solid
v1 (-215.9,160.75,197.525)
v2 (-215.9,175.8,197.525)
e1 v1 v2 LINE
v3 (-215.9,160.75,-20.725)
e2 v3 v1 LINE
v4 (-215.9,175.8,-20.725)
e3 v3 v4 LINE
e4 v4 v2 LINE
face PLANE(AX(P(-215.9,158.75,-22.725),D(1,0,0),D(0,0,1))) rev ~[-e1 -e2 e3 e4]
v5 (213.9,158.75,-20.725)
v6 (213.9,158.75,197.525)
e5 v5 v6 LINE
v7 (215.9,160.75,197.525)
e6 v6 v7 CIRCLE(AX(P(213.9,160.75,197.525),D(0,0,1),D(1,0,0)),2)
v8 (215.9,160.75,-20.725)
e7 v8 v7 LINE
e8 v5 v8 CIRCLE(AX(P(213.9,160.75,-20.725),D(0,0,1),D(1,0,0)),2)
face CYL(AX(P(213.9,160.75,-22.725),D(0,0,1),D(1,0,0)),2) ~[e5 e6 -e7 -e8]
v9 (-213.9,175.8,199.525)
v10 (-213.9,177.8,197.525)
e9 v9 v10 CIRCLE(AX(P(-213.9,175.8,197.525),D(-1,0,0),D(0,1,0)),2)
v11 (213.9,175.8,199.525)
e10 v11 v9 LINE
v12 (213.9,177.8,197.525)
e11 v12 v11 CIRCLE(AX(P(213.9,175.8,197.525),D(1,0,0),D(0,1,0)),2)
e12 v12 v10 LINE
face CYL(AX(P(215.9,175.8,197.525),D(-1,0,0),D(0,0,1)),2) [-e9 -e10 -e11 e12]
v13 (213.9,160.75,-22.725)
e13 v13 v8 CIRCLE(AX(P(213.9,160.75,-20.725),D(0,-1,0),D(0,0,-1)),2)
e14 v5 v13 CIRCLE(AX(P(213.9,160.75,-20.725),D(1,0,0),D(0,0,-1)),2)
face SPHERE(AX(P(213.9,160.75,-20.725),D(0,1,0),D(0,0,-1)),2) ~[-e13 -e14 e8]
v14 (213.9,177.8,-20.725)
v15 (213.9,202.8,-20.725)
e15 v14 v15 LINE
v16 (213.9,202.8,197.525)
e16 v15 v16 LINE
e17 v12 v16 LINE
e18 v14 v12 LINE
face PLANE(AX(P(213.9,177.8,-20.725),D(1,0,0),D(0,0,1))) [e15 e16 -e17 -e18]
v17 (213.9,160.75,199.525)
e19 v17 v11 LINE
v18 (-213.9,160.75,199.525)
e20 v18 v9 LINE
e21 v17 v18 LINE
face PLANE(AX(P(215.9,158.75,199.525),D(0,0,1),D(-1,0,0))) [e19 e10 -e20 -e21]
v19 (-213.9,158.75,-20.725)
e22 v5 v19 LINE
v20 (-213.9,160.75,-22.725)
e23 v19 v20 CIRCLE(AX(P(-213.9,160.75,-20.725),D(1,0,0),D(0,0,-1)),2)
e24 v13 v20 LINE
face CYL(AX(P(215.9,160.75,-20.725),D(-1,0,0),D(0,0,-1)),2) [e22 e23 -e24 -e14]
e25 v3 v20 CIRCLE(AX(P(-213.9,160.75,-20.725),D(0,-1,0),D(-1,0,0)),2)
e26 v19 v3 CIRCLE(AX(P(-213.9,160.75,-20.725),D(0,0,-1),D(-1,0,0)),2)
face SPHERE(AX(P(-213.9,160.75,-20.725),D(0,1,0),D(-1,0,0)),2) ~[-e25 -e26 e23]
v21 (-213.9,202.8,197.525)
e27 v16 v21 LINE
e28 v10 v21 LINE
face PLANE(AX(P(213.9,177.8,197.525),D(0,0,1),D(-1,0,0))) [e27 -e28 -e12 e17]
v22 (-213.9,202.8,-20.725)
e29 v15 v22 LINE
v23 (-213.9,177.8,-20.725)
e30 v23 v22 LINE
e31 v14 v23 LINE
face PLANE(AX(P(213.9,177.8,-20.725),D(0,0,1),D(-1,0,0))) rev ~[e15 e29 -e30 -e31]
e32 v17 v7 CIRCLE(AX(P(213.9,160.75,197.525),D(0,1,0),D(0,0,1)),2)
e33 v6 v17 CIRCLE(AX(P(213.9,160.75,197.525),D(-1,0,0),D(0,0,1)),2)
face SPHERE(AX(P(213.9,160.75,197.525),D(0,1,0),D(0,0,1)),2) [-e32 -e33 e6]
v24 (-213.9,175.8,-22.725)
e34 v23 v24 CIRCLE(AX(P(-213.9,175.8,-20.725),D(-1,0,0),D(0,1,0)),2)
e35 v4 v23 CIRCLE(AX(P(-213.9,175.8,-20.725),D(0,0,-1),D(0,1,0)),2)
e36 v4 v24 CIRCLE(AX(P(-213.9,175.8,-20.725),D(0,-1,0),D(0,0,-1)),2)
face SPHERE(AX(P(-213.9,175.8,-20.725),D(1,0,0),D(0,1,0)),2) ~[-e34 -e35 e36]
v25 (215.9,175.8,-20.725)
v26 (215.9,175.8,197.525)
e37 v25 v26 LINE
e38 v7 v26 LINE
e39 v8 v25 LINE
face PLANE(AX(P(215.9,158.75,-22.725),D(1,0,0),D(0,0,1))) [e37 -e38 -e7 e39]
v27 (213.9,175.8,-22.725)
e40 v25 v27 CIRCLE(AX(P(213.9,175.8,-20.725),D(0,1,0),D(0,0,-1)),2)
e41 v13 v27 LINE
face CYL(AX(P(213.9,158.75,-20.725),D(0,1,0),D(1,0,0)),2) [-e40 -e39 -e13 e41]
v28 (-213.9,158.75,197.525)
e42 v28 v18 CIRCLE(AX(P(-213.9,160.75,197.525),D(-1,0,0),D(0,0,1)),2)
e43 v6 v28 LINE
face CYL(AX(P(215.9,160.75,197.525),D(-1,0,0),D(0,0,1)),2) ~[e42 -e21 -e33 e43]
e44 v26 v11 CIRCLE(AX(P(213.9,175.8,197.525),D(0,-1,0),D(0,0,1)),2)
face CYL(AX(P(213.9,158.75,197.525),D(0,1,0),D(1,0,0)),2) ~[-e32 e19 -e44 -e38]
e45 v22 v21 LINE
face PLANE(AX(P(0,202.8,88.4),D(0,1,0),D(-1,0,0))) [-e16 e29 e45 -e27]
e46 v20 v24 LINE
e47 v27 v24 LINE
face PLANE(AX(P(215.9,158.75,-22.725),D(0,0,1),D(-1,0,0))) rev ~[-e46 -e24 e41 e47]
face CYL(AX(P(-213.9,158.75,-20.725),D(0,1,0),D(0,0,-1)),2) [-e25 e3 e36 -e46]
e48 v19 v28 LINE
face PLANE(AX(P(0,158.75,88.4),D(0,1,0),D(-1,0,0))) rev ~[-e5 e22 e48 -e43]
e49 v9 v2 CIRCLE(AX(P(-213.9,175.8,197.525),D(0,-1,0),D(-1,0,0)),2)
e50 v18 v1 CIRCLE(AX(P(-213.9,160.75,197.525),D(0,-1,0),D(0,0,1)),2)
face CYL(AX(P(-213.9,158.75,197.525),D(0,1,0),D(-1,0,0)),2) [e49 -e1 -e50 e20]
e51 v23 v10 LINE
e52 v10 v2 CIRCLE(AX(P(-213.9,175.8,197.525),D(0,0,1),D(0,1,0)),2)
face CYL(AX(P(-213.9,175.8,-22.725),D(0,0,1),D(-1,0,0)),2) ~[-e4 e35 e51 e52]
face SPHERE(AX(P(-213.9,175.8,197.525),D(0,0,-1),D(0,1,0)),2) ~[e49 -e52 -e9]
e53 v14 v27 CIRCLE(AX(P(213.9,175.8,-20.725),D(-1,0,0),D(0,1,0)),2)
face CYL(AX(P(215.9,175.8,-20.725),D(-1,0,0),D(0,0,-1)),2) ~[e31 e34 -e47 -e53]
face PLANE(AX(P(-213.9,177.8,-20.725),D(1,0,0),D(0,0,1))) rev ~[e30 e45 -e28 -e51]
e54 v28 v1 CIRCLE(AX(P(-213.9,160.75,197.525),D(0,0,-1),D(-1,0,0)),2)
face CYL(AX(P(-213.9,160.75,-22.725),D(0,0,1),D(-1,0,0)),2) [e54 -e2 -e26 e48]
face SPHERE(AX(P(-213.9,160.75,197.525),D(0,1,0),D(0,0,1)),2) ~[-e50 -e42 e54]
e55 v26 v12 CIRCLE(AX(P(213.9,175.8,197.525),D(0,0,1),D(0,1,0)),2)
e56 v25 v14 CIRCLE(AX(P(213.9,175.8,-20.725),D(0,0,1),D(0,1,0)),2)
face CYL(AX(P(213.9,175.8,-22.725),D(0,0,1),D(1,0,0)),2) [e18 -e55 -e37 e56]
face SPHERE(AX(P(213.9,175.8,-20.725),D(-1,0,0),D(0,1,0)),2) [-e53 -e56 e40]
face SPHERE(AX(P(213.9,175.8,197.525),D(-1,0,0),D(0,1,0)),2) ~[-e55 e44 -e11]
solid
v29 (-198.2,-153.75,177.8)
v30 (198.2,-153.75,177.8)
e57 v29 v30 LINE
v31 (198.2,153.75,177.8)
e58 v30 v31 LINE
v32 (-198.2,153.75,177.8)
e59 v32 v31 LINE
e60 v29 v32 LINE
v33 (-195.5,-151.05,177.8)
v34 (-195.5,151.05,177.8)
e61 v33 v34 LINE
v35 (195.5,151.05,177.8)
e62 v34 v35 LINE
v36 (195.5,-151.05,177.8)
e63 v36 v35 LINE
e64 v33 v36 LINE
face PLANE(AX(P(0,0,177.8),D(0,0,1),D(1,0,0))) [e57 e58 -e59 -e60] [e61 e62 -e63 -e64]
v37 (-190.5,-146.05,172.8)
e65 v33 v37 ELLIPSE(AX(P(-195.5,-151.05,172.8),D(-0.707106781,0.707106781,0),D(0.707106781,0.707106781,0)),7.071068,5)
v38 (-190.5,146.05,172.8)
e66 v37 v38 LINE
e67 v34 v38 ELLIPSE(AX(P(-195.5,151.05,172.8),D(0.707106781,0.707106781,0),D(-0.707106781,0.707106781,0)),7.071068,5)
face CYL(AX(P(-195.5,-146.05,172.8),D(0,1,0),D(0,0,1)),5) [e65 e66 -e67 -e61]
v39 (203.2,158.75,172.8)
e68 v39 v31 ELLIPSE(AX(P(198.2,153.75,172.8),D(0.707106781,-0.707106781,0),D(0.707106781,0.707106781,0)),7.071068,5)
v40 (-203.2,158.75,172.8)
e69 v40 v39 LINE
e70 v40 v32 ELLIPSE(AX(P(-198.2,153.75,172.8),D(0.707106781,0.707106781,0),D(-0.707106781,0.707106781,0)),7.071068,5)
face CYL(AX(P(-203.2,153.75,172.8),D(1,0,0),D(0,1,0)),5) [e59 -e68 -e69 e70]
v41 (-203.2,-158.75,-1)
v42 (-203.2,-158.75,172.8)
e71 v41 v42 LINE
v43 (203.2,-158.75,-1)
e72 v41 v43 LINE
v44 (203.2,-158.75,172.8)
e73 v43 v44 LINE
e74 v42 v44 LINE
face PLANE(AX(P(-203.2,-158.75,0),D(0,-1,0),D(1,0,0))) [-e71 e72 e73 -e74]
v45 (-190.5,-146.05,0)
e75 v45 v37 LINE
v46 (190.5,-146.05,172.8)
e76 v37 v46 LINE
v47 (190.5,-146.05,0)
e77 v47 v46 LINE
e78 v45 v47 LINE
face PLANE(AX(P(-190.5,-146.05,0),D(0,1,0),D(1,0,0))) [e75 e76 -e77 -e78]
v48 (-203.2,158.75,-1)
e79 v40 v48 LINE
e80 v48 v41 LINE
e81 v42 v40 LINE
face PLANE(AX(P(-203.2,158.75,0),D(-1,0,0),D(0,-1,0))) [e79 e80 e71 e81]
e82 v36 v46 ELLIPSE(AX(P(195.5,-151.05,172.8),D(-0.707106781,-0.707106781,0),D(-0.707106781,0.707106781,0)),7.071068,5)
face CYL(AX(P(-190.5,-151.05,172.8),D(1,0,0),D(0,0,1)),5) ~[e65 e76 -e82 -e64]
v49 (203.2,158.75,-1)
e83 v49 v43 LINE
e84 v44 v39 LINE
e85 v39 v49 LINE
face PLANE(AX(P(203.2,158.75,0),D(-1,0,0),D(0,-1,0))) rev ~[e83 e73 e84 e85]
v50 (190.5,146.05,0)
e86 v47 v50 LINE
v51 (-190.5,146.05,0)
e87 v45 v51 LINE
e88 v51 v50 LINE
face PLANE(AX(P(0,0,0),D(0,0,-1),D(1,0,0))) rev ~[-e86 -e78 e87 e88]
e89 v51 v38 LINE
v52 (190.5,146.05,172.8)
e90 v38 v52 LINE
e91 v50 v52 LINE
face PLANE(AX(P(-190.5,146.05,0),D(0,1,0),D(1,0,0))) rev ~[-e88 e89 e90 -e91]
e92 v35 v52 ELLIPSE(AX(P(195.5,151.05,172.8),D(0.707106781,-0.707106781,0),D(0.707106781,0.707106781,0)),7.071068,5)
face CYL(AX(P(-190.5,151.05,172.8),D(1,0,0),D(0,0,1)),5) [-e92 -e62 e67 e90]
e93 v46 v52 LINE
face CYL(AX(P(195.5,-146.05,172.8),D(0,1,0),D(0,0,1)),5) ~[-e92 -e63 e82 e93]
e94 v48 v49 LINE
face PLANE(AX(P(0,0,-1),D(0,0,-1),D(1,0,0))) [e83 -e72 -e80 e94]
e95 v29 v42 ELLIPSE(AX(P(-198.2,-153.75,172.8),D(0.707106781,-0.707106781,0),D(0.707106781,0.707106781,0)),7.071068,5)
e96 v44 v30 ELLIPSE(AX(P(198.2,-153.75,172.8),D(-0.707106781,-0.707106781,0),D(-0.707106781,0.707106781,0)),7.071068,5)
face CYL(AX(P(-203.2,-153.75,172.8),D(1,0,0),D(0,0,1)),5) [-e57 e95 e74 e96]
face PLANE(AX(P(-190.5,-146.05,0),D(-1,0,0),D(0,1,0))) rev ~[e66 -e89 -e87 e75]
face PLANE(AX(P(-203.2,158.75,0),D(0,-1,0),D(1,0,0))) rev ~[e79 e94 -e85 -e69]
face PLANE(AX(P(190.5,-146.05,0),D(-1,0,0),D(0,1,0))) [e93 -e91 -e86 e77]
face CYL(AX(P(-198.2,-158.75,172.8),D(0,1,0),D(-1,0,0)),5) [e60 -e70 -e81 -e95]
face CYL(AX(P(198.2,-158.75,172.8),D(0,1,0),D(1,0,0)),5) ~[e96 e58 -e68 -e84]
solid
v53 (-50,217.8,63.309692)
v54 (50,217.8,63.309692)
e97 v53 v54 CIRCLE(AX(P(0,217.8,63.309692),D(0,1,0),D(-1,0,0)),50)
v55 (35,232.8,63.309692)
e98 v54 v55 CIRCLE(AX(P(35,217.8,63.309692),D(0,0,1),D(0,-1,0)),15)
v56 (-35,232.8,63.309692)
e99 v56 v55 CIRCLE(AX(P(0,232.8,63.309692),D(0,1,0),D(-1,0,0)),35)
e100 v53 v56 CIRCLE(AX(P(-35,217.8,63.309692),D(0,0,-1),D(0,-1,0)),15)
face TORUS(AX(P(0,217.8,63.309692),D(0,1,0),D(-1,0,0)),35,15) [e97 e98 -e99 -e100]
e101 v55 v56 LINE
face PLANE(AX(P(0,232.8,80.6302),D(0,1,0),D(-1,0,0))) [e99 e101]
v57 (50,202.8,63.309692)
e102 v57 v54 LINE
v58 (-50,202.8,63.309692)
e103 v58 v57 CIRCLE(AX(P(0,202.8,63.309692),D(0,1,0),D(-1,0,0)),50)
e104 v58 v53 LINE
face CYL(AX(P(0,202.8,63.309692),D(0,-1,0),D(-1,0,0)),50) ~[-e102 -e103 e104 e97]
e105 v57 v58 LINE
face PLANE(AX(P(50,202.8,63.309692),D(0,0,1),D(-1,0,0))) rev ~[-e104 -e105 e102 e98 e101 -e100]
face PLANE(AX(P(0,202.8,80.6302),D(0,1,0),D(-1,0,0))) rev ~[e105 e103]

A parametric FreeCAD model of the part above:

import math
import FreeCAD as App
import Part
import Sketcher

V = App.Vector


def edges_at(feature, points):
    """Names of the edges that pass closest to the given points."""
    edges = feature.Shape.Edges
    near = lambda p: min(range(len(edges)), key=lambda i: edges[i].distToShape(Part.Vertex(*p))[0])
    return sorted({f"Edge{near(p) + 1}" for p in points})

doc = App.newDocument("Part")
body = doc.addObject("PartDesign::Body", "Body")

# Sketch on XY plane
sketch1 = body.newObject("Sketcher::SketchObject", "Sketch")
sketch1.AttachmentSupport = (doc.getObject("XY_Plane"), [""])
sketch1.MapMode = "FlatFace"
sketch1.addGeometry([
    Part.LineSegment(V(-203, 159, 0), V(-203, -159, 0)),  # 0
    Part.LineSegment(V(-203, -159, 0), V(203, -159, 0)),  # 1
    Part.LineSegment(V(203, -159, 0), V(203, 159, 0)),  # 2
    Part.LineSegment(V(203, 159, 0), V(-203, 159, 0)),  # 3
    Part.LineSegment(V(190, -146, 0), V(-190, -146, 0)),  # 4
    Part.LineSegment(V(-190, -146, 0), V(-190, 146, 0)),  # 5
    Part.LineSegment(V(-190, 146, 0), V(190, 146, 0)),  # 6
    Part.LineSegment(V(190, 146, 0), V(190, -146, 0)),  # 7
], False)
sketch1.addConstraint([
    Sketcher.Constraint("Coincident", 0, 2, 1, 1),
    Sketcher.Constraint("Coincident", 1, 2, 2, 1),
    Sketcher.Constraint("Coincident", 2, 2, 3, 1),
    Sketcher.Constraint("Coincident", 3, 2, 0, 1),
    Sketcher.Constraint("Coincident", 4, 2, 5, 1),
    Sketcher.Constraint("Coincident", 5, 2, 6, 1),
    Sketcher.Constraint("Coincident", 6, 2, 7, 1),
    Sketcher.Constraint("Coincident", 7, 2, 4, 1),
    Sketcher.Constraint("Vertical", 0),
    Sketcher.Constraint("Horizontal", 1),
    Sketcher.Constraint("Vertical", 2),
    Sketcher.Constraint("Horizontal", 3),
    Sketcher.Constraint("Horizontal", 4),
    Sketcher.Constraint("Vertical", 5),
    Sketcher.Constraint("Horizontal", 6),
    Sketcher.Constraint("Vertical", 7),
    Sketcher.Constraint("Symmetric", 0, 2, 2, 2, -1, 1),
    Sketcher.Constraint("Symmetric", 4, 2, 6, 2, -1, 1),
    Sketcher.Constraint("DistanceX", 4, 2, 4, 1, 381.0),
    Sketcher.Constraint("DistanceX", 1, 1, 1, 2, 406.4),
    Sketcher.Constraint("DistanceY", 0, 2, 0, 1, 317.5),
    Sketcher.Constraint("DistanceY", 5, 1, 5, 2, 292.1),
])
pad1 = body.newObject("PartDesign::Pad", "Pad")
pad1.Profile = sketch1
pad1.Length = 177.8

# Sketch on XY plane
sketch2 = body.newObject("Sketcher::SketchObject", "Sketch001")
sketch2.AttachmentSupport = (doc.getObject("XY_Plane"), [""])
sketch2.MapMode = "FlatFace"
sketch2.addGeometry([
    Part.LineSegment(V(-203, -159, 0), V(-203, 159, 0)),
    Part.LineSegment(V(-203, 159, 0), V(203, 159, 0)),
    Part.LineSegment(V(203, 159, 0), V(203, -159, 0)),
    Part.LineSegment(V(203, -159, 0), V(-203, -159, 0)),
], False)
sketch2.addConstraint([
    Sketcher.Constraint("Coincident", 0, 2, 1, 1),
    Sketcher.Constraint("Coincident", 1, 2, 2, 1),
    Sketcher.Constraint("Coincident", 2, 2, 3, 1),
    Sketcher.Constraint("Coincident", 3, 2, 0, 1),
    Sketcher.Constraint("Vertical", 0),
    Sketcher.Constraint("Horizontal", 1),
    Sketcher.Constraint("Vertical", 2),
    Sketcher.Constraint("Horizontal", 3),
    Sketcher.Constraint("Symmetric", 0, 2, 2, 2, -1, 1),
    Sketcher.Constraint("DistanceX", 1, 1, 1, 2, 406.4),
    Sketcher.Constraint("DistanceY", 0, 1, 0, 2, 317.5),
])
pad2 = body.newObject("PartDesign::Pad", "Pad001")
pad2.Profile = sketch2
pad2.Length = 1
pad2.Reversed = True
doc.recompute()

fillet = body.newObject("PartDesign::Fillet", "Fillet")
fillet.Base = (pad2, edges_at(pad2, [
    (203.2, 0, 177.8),
    (190.5, 0, 177.8),
    (0, -146.05, 177.8),
    (0, -158.75, 177.8),
    (-190.5, 0, 177.8),
    (-203.2, 0, 177.8),
    (0, 158.75, 177.8),
    (0, 146.05, 177.8),
]))
fillet.Radius = 5
body2 = doc.addObject("PartDesign::Body", "Body001")

# Sketch on XZ plane
sketch3 = body2.newObject("Sketcher::SketchObject", "Sketch002")
sketch3.AttachmentSupport = (doc.getObject("XZ_Plane001"), [""])
sketch3.MapMode = "FlatFace"
sketch3.AttachmentOffset = App.Placement(V(0, 0, -158.75), App.Rotation())
sketch3.addGeometry([
    Part.LineSegment(V(216, 200, 0), V(216, -23, 0)),
    Part.LineSegment(V(216, -23, 0), V(-216, -23, 0)),
    Part.LineSegment(V(-216, -23, 0), V(-216, 200, 0)),
    Part.LineSegment(V(-216, 200, 0), V(216, 200, 0)),
], False)
sketch3.addConstraint([
    Sketcher.Constraint("Coincident", 0, 2, 1, 1),
    Sketcher.Constraint("Coincident", 1, 2, 2, 1),
    Sketcher.Constraint("Coincident", 2, 2, 3, 1),
    Sketcher.Constraint("Coincident", 3, 2, 0, 1),
    Sketcher.Constraint("Vertical", 0),
    Sketcher.Constraint("Horizontal", 1),
    Sketcher.Constraint("Vertical", 2),
    Sketcher.Constraint("Horizontal", 3),
    Sketcher.Constraint("DistanceX", 1, 2, 1, 1, 431.8),
    Sketcher.Constraint("DistanceY", 0, 2, 0, 1, 222.25),
    Sketcher.Constraint("DistanceX", -1, 1, 0, 2, 215.9),
    Sketcher.Constraint("DistanceY", 0, 2, -1, 1, 22.725),
])
pad3 = body2.newObject("PartDesign::Pad", "Pad002")
pad3.Profile = sketch3
pad3.Length = 19.05
pad3.Reversed = True
doc.recompute()

fillet2 = body2.newObject("PartDesign::Fillet", "Fillet001")
fillet2.Base = (pad3, ["Edge1"])
fillet2.UseAllEdges = True
fillet2.Radius = 2

# Sketch on XZ plane
sketch4 = body2.newObject("Sketcher::SketchObject", "Sketch003")
sketch4.AttachmentSupport = (doc.getObject("XZ_Plane001"), [""])
sketch4.MapMode = "FlatFace"
sketch4.AttachmentOffset = App.Placement(V(0, 0, -177.8), App.Rotation())
sketch4.addGeometry([
    Part.LineSegment(V(214, 198, 0), V(214, -21, 0)),
    Part.LineSegment(V(214, -21, 0), V(-214, -21, 0)),
    Part.LineSegment(V(-214, -21, 0), V(-214, 198, 0)),
    Part.LineSegment(V(-214, 198, 0), V(214, 198, 0)),
], False)
sketch4.addConstraint([
    Sketcher.Constraint("Coincident", 0, 2, 1, 1),
    Sketcher.Constraint("Coincident", 1, 2, 2, 1),
    Sketcher.Constraint("Coincident", 2, 2, 3, 1),
    Sketcher.Constraint("Coincident", 3, 2, 0, 1),
    Sketcher.Constraint("Vertical", 0),
    Sketcher.Constraint("Horizontal", 1),
    Sketcher.Constraint("Vertical", 2),
    Sketcher.Constraint("Horizontal", 3),
    Sketcher.Constraint("DistanceX", 1, 2, 1, 1, 427.8),
    Sketcher.Constraint("DistanceY", 0, 2, 0, 1, 218.25),
    Sketcher.Constraint("DistanceX", -1, 1, 0, 2, 213.9),
    Sketcher.Constraint("DistanceY", 0, 2, -1, 1, 20.725),
])
pad4 = body2.newObject("PartDesign::Pad", "Pad003")
pad4.Profile = sketch4
pad4.Length = 25
pad4.Reversed = True
body3 = doc.addObject("PartDesign::Body", "Body002")

# Sketch on XZ plane
sketch5 = body3.newObject("Sketcher::SketchObject", "Sketch004")
sketch5.AttachmentSupport = (doc.getObject("XZ_Plane002"), [""])
sketch5.MapMode = "FlatFace"
sketch5.AttachmentOffset = App.Placement(V(0, 0, -202.8), App.Rotation())
sketch5.addGeometry([
    Part.LineSegment(V(50, 63, 0), V(-50, 63, 0)),
    Part.ArcOfCircle(Part.Circle(V(0, 63, 0), V(0, 0, 1), 50), math.radians(0), math.radians(180)),
], False)
sketch5.addConstraint([
    Sketcher.Constraint("Coincident", 0, 1, 1, 1),
    Sketcher.Constraint("Coincident", 1, 2, 0, 2),
    Sketcher.Constraint("Horizontal", 0),
    Sketcher.Constraint("PointOnObject", 1, 3, -2),
    Sketcher.Constraint("Horizontal", 1, 3, 0, 1),
    Sketcher.Constraint("Radius", 1, 50.0),
    Sketcher.Constraint("DistanceY", -1, 1, 1, 3, 63.309692),
])
pad5 = body3.newObject("PartDesign::Pad", "Pad004")
pad5.Profile = sketch5
pad5.Length = 30
pad5.Reversed = True
doc.recompute()

fillet3 = body3.newObject("PartDesign::Fillet", "Fillet002")
fillet3.Base = (pad5, edges_at(pad5, [(0, 232.8, 113.31)]))
fillet3.Radius = 15

doc.recompute()
